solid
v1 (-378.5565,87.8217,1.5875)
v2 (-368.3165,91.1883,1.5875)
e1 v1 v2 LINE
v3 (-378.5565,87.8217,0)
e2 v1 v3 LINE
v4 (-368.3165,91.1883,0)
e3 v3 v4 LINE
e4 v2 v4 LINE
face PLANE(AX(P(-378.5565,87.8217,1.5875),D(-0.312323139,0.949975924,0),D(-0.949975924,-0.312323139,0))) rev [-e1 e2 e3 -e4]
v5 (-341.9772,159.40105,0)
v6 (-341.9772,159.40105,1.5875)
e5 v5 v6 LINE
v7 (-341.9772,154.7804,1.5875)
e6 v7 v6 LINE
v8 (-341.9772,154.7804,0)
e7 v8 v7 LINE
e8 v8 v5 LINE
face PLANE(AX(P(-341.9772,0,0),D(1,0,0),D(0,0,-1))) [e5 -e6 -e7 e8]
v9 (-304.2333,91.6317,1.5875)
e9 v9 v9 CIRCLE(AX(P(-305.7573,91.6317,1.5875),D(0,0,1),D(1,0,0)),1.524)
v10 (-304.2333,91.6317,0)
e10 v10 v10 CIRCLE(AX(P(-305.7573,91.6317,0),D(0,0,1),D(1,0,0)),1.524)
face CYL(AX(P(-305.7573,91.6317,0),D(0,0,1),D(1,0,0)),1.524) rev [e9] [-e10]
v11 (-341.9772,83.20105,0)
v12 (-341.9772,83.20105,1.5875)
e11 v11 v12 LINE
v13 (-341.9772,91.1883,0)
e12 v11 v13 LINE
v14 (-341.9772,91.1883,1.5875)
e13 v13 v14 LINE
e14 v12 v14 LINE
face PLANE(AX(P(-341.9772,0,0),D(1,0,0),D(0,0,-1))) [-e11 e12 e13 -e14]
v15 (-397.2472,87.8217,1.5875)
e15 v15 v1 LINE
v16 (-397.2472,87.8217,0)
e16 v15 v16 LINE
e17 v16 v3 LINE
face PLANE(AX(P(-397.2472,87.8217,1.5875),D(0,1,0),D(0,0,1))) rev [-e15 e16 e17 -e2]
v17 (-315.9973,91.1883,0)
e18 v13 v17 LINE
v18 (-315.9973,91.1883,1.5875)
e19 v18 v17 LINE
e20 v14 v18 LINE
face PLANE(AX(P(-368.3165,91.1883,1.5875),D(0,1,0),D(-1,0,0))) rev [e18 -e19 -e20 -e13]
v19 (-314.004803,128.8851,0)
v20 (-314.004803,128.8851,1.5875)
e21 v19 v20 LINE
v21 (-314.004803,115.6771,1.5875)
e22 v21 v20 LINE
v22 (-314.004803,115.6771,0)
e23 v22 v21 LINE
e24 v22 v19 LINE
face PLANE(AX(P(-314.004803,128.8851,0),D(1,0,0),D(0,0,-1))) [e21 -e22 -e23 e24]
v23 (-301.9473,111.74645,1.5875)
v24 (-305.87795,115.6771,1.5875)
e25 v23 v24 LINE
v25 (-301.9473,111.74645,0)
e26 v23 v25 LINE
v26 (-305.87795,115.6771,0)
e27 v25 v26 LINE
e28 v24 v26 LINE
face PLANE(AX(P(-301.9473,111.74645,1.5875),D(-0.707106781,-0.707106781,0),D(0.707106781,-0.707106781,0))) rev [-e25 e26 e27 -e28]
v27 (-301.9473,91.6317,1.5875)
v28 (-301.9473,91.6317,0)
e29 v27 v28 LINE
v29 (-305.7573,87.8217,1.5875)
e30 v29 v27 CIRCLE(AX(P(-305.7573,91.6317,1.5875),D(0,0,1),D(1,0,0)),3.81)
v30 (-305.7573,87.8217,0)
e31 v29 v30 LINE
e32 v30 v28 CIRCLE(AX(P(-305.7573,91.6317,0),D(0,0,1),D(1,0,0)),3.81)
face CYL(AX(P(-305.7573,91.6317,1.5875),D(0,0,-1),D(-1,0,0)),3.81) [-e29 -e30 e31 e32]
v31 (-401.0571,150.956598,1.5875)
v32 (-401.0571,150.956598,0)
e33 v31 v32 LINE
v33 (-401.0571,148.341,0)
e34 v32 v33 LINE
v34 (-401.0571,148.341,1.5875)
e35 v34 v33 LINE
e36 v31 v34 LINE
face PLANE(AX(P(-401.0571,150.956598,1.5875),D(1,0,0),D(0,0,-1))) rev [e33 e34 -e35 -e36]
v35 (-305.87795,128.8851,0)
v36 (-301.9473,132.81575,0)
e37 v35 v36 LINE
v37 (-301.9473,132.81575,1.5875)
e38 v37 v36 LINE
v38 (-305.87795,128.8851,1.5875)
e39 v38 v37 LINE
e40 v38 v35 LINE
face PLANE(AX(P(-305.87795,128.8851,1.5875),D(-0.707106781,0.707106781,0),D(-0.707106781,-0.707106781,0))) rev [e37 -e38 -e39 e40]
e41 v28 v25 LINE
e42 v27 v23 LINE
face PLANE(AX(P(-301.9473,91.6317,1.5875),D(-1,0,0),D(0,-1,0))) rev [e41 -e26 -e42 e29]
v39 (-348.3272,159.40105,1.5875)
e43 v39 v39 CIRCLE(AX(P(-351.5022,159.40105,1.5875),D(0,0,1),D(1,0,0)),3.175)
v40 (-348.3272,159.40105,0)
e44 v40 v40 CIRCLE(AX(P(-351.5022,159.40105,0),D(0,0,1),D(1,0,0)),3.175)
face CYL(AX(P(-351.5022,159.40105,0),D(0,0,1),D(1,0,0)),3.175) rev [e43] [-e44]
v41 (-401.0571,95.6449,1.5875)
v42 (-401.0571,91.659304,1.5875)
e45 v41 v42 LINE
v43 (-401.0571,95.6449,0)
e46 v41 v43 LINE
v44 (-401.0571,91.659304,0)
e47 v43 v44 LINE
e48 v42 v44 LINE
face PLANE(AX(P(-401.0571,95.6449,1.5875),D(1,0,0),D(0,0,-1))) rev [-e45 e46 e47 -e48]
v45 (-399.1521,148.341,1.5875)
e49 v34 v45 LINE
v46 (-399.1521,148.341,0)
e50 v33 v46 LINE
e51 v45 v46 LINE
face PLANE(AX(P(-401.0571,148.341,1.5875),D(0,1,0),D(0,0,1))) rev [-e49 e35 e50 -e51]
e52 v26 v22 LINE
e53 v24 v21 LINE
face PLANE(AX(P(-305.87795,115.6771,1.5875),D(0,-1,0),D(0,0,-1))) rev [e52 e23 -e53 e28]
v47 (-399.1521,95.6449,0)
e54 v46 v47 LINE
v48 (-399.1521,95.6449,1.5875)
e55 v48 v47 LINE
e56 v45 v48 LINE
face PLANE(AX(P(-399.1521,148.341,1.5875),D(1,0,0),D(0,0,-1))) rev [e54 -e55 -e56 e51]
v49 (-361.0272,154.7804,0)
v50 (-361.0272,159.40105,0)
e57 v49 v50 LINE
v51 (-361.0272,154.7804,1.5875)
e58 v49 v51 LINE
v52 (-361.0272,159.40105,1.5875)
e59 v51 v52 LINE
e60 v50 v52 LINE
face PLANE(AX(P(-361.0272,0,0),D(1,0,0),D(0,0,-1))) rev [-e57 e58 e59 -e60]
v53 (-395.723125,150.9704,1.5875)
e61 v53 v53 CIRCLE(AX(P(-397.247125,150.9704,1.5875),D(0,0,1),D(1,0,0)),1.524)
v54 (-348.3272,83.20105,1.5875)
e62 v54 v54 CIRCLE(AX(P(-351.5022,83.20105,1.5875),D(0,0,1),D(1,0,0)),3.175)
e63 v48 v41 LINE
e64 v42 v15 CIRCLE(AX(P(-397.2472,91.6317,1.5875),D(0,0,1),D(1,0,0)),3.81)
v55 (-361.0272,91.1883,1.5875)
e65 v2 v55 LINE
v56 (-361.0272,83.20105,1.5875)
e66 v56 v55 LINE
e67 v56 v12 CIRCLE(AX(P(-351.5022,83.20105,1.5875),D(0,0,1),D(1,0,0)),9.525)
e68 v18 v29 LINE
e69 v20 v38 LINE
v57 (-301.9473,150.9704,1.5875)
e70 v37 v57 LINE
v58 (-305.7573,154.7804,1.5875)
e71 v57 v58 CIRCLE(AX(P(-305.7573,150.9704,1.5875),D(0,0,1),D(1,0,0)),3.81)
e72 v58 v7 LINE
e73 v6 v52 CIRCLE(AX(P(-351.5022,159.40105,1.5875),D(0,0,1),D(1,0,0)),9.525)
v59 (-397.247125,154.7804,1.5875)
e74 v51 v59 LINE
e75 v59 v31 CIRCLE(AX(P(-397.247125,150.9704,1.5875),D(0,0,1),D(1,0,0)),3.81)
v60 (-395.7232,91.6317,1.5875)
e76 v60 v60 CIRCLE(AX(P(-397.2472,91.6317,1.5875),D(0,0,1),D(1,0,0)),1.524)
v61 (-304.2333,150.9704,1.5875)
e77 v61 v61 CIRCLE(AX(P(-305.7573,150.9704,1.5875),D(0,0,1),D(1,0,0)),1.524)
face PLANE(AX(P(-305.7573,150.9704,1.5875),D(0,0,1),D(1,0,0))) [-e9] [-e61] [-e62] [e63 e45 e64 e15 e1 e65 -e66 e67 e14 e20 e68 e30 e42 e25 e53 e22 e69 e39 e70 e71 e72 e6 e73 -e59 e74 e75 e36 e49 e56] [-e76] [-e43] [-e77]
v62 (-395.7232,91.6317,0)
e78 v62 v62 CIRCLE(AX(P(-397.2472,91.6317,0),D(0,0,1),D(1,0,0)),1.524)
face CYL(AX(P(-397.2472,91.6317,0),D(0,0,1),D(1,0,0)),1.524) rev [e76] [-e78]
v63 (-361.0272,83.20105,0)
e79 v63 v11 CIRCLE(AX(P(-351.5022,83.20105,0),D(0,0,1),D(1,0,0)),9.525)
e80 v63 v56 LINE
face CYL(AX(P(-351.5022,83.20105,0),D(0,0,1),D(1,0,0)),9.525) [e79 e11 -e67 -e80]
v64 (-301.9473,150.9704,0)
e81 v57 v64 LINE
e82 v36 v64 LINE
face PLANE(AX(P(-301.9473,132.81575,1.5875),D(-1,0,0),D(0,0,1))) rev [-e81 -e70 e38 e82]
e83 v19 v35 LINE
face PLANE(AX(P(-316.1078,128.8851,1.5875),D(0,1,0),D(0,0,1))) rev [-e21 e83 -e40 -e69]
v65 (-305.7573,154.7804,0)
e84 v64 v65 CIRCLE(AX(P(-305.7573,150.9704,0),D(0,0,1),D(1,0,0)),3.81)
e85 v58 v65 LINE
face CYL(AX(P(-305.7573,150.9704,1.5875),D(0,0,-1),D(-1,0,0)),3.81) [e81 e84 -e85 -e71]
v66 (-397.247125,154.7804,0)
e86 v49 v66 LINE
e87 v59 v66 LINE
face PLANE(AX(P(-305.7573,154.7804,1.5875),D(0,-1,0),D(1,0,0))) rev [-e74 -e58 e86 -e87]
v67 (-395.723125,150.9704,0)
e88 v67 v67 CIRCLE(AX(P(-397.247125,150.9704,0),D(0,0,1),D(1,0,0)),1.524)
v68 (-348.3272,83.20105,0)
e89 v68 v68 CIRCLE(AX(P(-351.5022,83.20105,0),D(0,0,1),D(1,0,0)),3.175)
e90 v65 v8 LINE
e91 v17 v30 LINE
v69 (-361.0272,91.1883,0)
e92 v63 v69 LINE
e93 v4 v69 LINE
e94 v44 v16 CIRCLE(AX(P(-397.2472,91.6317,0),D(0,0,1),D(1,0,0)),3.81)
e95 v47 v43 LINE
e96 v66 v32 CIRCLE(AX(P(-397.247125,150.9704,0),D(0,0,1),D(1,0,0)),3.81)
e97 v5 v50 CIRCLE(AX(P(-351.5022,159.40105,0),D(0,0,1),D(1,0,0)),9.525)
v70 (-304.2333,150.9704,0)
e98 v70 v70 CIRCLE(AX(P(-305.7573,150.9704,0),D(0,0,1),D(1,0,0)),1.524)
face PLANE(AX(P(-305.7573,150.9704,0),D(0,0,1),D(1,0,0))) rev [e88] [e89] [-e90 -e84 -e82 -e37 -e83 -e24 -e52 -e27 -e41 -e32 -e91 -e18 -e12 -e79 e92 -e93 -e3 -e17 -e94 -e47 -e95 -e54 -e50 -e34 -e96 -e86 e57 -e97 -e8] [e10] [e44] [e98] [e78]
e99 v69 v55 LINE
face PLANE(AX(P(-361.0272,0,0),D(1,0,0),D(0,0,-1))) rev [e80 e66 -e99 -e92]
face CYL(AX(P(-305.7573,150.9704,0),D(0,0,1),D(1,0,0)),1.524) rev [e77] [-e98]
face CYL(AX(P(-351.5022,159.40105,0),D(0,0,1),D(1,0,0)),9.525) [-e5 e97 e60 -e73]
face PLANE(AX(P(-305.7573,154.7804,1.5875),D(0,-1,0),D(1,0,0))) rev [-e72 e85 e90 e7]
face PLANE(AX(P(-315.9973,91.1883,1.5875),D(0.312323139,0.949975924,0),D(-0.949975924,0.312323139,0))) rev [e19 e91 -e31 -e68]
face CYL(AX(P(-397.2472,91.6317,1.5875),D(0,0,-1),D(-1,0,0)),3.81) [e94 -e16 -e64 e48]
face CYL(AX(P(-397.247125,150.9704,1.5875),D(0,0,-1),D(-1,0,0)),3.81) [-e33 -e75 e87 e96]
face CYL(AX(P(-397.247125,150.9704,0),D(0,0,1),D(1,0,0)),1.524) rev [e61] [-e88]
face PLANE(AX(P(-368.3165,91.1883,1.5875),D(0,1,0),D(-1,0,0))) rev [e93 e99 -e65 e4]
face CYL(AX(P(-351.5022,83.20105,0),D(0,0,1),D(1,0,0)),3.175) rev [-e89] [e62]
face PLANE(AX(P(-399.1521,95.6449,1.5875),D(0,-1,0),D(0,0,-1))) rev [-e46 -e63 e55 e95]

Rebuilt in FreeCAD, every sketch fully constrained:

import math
import FreeCAD as App
import Part
import Sketcher

V = App.Vector
Q = App.Units.Quantity


def add_polygon(sketch, points):
    """Adds a closed chain of lines whose ends are joined by coincident constraints."""
    first, n = sketch.GeometryCount, len(points)
    for a, b in zip(points, points[1:] + points[:1]):
        sketch.addGeometry(Part.LineSegment(App.Vector(*a, 0), App.Vector(*b, 0)), False)
    for i in range(n):
        sketch.addConstraint(Sketcher.Constraint("Coincident", first + i, 2, first + (i + 1) % n, 1))

doc = App.newDocument("Part")
body = doc.addObject("PartDesign::Body", "Body")

# Sketch on XY plane
sketch1 = body.newObject("Sketcher::SketchObject", "Sketch")
sketch1.AttachmentSupport = (doc.getObject("XY_Plane"), [""])
sketch1.MapMode = "FlatFace"
sketch1.addGeometry(Part.LineSegment(V(-301.9473, 111.74645, 0), V(-305.87795, 115.6771, 0)), False)
sketch1.addGeometry(Part.LineSegment(V(-305.87795, 115.6771, 0), V(-316.1078, 115.6771, 0)), False)
sketch1.addGeometry(Part.LineSegment(V(-316.1078, 115.6771, 0), V(-316.1078, 128.8851, 0)), False)
sketch1.addGeometry(Part.LineSegment(V(-316.1078, 128.8851, 0), V(-305.87795, 128.8851, 0)), False)
sketch1.addGeometry(Part.LineSegment(V(-305.87795, 128.8851, 0), V(-301.9473, 132.81575, 0)), False)
sketch1.addGeometry(Part.LineSegment(V(-301.9473, 132.81575, 0), V(-301.9473, 150.9704, 0)), False)
sketch1.addGeometry(Part.ArcOfCircle(Part.Circle(V(-305.7573, 150.9704, 0), V(0, 0, 1), 3.81), math.radians(0), math.radians(90)), False)
sketch1.addGeometry(Part.LineSegment(V(-305.7573, 154.7804, 0), V(-397.247125, 154.7804, 0)), False)
sketch1.addGeometry(Part.ArcOfCircle(Part.Circle(V(-397.247125, 150.9704, 0), V(0, 0, 1), 3.81), math.radians(90), math.radians(180.207561)), False)
sketch1.addGeometry(Part.LineSegment(V(-401.0571, 150.956598, 0), V(-401.0571, 148.341, 0)), False)
sketch1.addGeometry(Part.LineSegment(V(-401.0571, 148.341, 0), V(-399.1521, 148.341, 0)), False)
sketch1.addGeometry(Part.LineSegment(V(-399.1521, 148.341, 0), V(-399.1521, 95.6449, 0)), False)
sketch1.addGeometry(Part.LineSegment(V(-399.1521, 95.6449, 0), V(-401.0571, 95.6449, 0)), False)
sketch1.addGeometry(Part.LineSegment(V(-401.0571, 95.6449, 0), V(-401.0571, 91.659304, 0)), False)
sketch1.addGeometry(Part.ArcOfCircle(Part.Circle(V(-397.2472, 91.6317, 0), V(0, 0, 1), 3.81), math.radians(179.584878), math.radians(270)), False)
sketch1.addGeometry(Part.LineSegment(V(-397.2472, 87.8217, 0), V(-378.5565, 87.8217, 0)), False)
sketch1.addGeometry(Part.LineSegment(V(-378.5565, 87.8217, 0), V(-368.3165, 91.1883, 0)), False)
sketch1.addGeometry(Part.LineSegment(V(-368.3165, 91.1883, 0), V(-315.9973, 91.1883, 0)), False)
sketch1.addGeometry(Part.LineSegment(V(-315.9973, 91.1883, 0), V(-305.7573, 87.8217, 0)), False)
sketch1.addGeometry(Part.ArcOfCircle(Part.Circle(V(-305.7573, 91.6317, 0), V(0, 0, 1), 3.81), math.radians(-90), math.radians(0)), False)
sketch1.addGeometry(Part.LineSegment(V(-301.9473, 91.6317, 0), V(-301.9473, 111.74645, 0)), False)
sketch1.addGeometry(Part.Circle(V(-397.2472, 91.6317, 0), V(0, 0, 1), 1.3559), False)
sketch1.addGeometry(Part.Circle(V(-305.7573, 91.6317, 0), V(0, 0, 1), 1.3559), False)
sketch1.addGeometry(Part.Circle(V(-397.247125, 150.9704, 0), V(0, 0, 1), 1.3559), False)
sketch1.addGeometry(Part.Circle(V(-305.7573, 150.9704, 0), V(0, 0, 1), 1.3559), False)
sketch1.addConstraint(Sketcher.Constraint("Coincident", 0, 2, 1, 1))
sketch1.addConstraint(Sketcher.Constraint("Coincident", 1, 2, 2, 1))
sketch1.addConstraint(Sketcher.Constraint("Coincident", 2, 2, 3, 1))
sketch1.addConstraint(Sketcher.Constraint("Coincident", 3, 2, 4, 1))
sketch1.addConstraint(Sketcher.Constraint("Coincident", 4, 2, 5, 1))
sketch1.addConstraint(Sketcher.Constraint("Tangent", 5, 2, 6, 1))
sketch1.addConstraint(Sketcher.Constraint("Tangent", 6, 2, 7, 1))
sketch1.addConstraint(Sketcher.Constraint("Tangent", 7, 2, 8, 1))
sketch1.addConstraint(Sketcher.Constraint("Coincident", 8, 2, 9, 1))
sketch1.addConstraint(Sketcher.Constraint("Coincident", 9, 2, 10, 1))
sketch1.addConstraint(Sketcher.Constraint("Coincident", 10, 2, 11, 1))
sketch1.addConstraint(Sketcher.Constraint("Coincident", 11, 2, 12, 1))
sketch1.addConstraint(Sketcher.Constraint("Coincident", 12, 2, 13, 1))
sketch1.addConstraint(Sketcher.Constraint("Coincident", 13, 2, 14, 1))
sketch1.addConstraint(Sketcher.Constraint("Tangent", 14, 2, 15, 1))
sketch1.addConstraint(Sketcher.Constraint("Coincident", 15, 2, 16, 1))
sketch1.addConstraint(Sketcher.Constraint("Coincident", 16, 2, 17, 1))
sketch1.addConstraint(Sketcher.Constraint("Coincident", 17, 2, 18, 1))
sketch1.addConstraint(Sketcher.Constraint("Coincident", 18, 2, 19, 1))
sketch1.addConstraint(Sketcher.Constraint("Tangent", 19, 2, 20, 1))
sketch1.addConstraint(Sketcher.Constraint("Coincident", 20, 2, 0, 1))
sketch1.addConstraint(Sketcher.Constraint("Horizontal", 1))
sketch1.addConstraint(Sketcher.Constraint("Vertical", 2))
sketch1.addConstraint(Sketcher.Constraint("Horizontal", 3))
sketch1.addConstraint(Sketcher.Constraint("Vertical", 5))
sketch1.addConstraint(Sketcher.Constraint("Horizontal", 7))
sketch1.addConstraint(Sketcher.Constraint("Vertical", 9))
sketch1.addConstraint(Sketcher.Constraint("Horizontal", 10))
sketch1.addConstraint(Sketcher.Constraint("Vertical", 11))
sketch1.addConstraint(Sketcher.Constraint("Horizontal", 12))
sketch1.addConstraint(Sketcher.Constraint("Vertical", 13))
sketch1.addConstraint(Sketcher.Constraint("Horizontal", 15))
sketch1.addConstraint(Sketcher.Constraint("Horizontal", 17))
sketch1.addConstraint(Sketcher.Constraint("Vertical", 20))
sketch1.addConstraint(Sketcher.Constraint("Coincident", 21, 3, 14, 3))
sketch1.addConstraint(Sketcher.Constraint("Coincident", 22, 3, 19, 3))
sketch1.addConstraint(Sketcher.Constraint("Coincident", 23, 3, 8, 3))
sketch1.addConstraint(Sketcher.Constraint("Coincident", 24, 3, 6, 3))
sketch1.addConstraint(Sketcher.Constraint("Equal", 6, 8))
sketch1.addConstraint(Sketcher.Constraint("Equal", 8, 14))
sketch1.addConstraint(Sketcher.Constraint("Equal", 14, 19))
sketch1.addConstraint(Sketcher.Constraint("Equal", 21, 22))
sketch1.addConstraint(Sketcher.Constraint("Equal", 22, 23))
sketch1.addConstraint(Sketcher.Constraint("Equal", 23, 24))
sketch1.addConstraint(Sketcher.Constraint("Perpendicular", 0, 4))
sketch1.addConstraint(Sketcher.Constraint("Horizontal", 14, 3, 19, 3))
sketch1.addConstraint(Sketcher.Constraint("Vertical", 6, 3, 19, 3))
sketch1.addConstraint(Sketcher.Constraint("Vertical", 0, 2, 3, 2))
sketch1.addConstraint(Sketcher.Constraint("Vertical", 9, 2, 12, 2))
sketch1.addConstraint(Sketcher.Constraint("Vertical", 6, 2, 18, 2))
sketch1.addConstraint(Sketcher.Constraint("Equal", 0, 4))
sketch1.addConstraint(Sketcher.Constraint("Equal", 16, 18))
sketch1.addConstraint(Sketcher.Constraint("Radius", 6, Q("0.15 in")))
sketch1.addConstraint(Sketcher.Constraint("DistanceY", 2, 1, 2, 2, Q("0.52 in")))
sketch1.addConstraint(Sketcher.Constraint("Diameter", 21, 2.711801))
sketch1.addConstraint(Sketcher.Constraint("DistanceX", 10, 1, 10, 2, Q("0.075 in")))
sketch1.addConstraint(Sketcher.Constraint("DistanceY", 14, 3, 11, 2, Q("0.158 in")))
sketch1.addConstraint(Sketcher.Constraint("DistanceX", 11, 2, 16, 2, Q("1.214 in")))
sketch1.addConstraint(Sketcher.Constraint("DistanceX", 15, 1, 15, 2, 18.6907))
sketch1.addConstraint(Sketcher.Constraint("DistanceX", 17, 1, 17, 2, 52.3192))
sketch1.addConstraint(Sketcher.Constraint("DistanceY", 11, 2, 11, 1, 52.6961))
sketch1.addConstraint(Sketcher.Constraint("DistanceY", 0, 2, 6, 3, Q("1.3895 in")))
sketch1.addConstraint(Sketcher.Constraint("DistanceX", 1, 2, 19, 3, Q("0.4075 in")))
sketch1.addConstraint(Sketcher.Constraint("DistanceX", 1, 2, 1, 1, 10.22985))
sketch1.addConstraint(Sketcher.Constraint("DistanceY", 20, 1, 20, 2, 20.11475))
sketch1.addConstraint(Sketcher.Constraint("DistanceX", 6, 3, -1, 1, 305.7573))
sketch1.addConstraint(Sketcher.Constraint("DistanceY", -1, 1, 6, 3, 150.9704))
sketch1.addConstraint(Sketcher.Constraint("DistanceX", 14, 3, -1, 1, 397.2472))
sketch1.addConstraint(Sketcher.Constraint("DistanceY", -1, 1, 16, 2, 91.1883))
sketch1.addConstraint(Sketcher.Constraint("DistanceX", 7, 2, 7, 1, 91.489825))
pad1 = body.newObject("PartDesign::Pad", "Pad")
pad1.Profile = sketch1
pad1.Length = Q("0.0625 in")

# Sketch on XY plane
sketch2 = body.newObject("Sketcher::SketchObject", "Sketch001")
sketch2.AttachmentSupport = (doc.getObject("XY_Plane"), [""])
sketch2.MapMode = "FlatFace"
sketch2.AttachmentOffset = App.Placement(V(0, 0, 0.0625 * 25.4), App.Rotation())
sketch2.addGeometry(Part.LineSegment(V(-361, 159.4, 0), V(-361, 154.8, 0)), False)
sketch2.addGeometry(Part.LineSegment(V(-361, 154.8, 0), V(-342, 154.8, 0)), False)
sketch2.addGeometry(Part.LineSegment(V(-342, 154.8, 0), V(-342, 159.4, 0)), False)
sketch2.addGeometry(Part.ArcOfCircle(Part.Circle(V(-351.5, 159.4, 0), V(0, 0, 1), 9.5), math.radians(0), math.radians(180)), False)
sketch2.addGeometry(Part.Circle(V(-351.5, 159.4, 0), V(0, 0, 1), 3.2), False)
sketch2.addGeometry(Part.LineSegment(V(-342, 91.2, 0), V(-361, 91.2, 0)), False)
sketch2.addGeometry(Part.LineSegment(V(-361, 91.2, 0), V(-361, 83.2, 0)), False)
sketch2.addGeometry(Part.ArcOfCircle(Part.Circle(V(-351.5, 83.2, 0), V(0, 0, 1), 9.5), math.radians(180), math.radians(360)), False)
sketch2.addGeometry(Part.LineSegment(V(-342, 83.2, 0), V(-342, 91.2, 0)), False)
sketch2.addGeometry(Part.Circle(V(-351.5, 83.2, 0), V(0, 0, 1), 3.2), False)
sketch2.addConstraint(Sketcher.Constraint("Coincident", 0, 2, 1, 1))
sketch2.addConstraint(Sketcher.Constraint("Coincident", 1, 2, 2, 1))
sketch2.addConstraint(Sketcher.Constraint("Tangent", 2, 2, 3, 1))
sketch2.addConstraint(Sketcher.Constraint("Tangent", 3, 2, 0, 1))
sketch2.addConstraint(Sketcher.Constraint("Coincident", 5, 2, 6, 1))
sketch2.addConstraint(Sketcher.Constraint("Tangent", 6, 2, 7, 1))
sketch2.addConstraint(Sketcher.Constraint("Tangent", 7, 2, 8, 1))
sketch2.addConstraint(Sketcher.Constraint("Coincident", 8, 2, 5, 1))
sketch2.addConstraint(Sketcher.Constraint("Vertical", 0))
sketch2.addConstraint(Sketcher.Constraint("Horizontal", 1))
sketch2.addConstraint(Sketcher.Constraint("Vertical", 2))
sketch2.addConstraint(Sketcher.Constraint("Horizontal", 5))
sketch2.addConstraint(Sketcher.Constraint("Vertical", 6))
sketch2.addConstraint(Sketcher.Constraint("Vertical", 8))
sketch2.addConstraint(Sketcher.Constraint("Coincident", 4, 3, 3, 3))
sketch2.addConstraint(Sketcher.Constraint("Coincident", 9, 3, 7, 3))
sketch2.addConstraint(Sketcher.Constraint("Equal", 3, 7))
sketch2.addConstraint(Sketcher.Constraint("Equal", 4, 9))
sketch2.addConstraint(Sketcher.Constraint("Vertical", 4, 3, 7, 3))
sketch2.addConstraint(Sketcher.Constraint("Diameter", 4, Q("0.25 in")))
sketch2.addConstraint(Sketcher.Constraint("Radius", 3, Q("0.375 in")))
sketch2.addConstraint(Sketcher.Constraint("DistanceY", 7, 3, 3, 3, Q("3 in")))
sketch2.addConstraint(Sketcher.Constraint("DistanceY", 0, 2, 0, 1, 4.62065))
sketch2.addConstraint(Sketcher.Constraint("DistanceY", 6, 2, 6, 1, 7.98725))
sketch2.addConstraint(Sketcher.Constraint("DistanceX", 3, 3, -1, 1, 351.5022))
sketch2.addConstraint(Sketcher.Constraint("DistanceY", -1, 1, 0, 2, 154.7804))
pad2 = body.newObject("PartDesign::Pad", "Pad001")
pad2.Profile = sketch2
pad2.Length = Q("0.0625 in")
pad2.Reversed = True

# Sketch on XY plane
sketch3 = body.newObject("Sketcher::SketchObject", "Sketch002")
sketch3.AttachmentSupport = (doc.getObject("XY_Plane"), [""])
sketch3.MapMode = "FlatFace"
sketch3.AttachmentOffset = App.Placement(V(0, 0, 0.0625 * 25.4), App.Rotation())
sketch3.addGeometry(Part.Circle(V(-397.2, 151, 0), V(0, 0, 1), 1.5), False)
sketch3.addGeometry(Part.Circle(V(-305.8, 151, 0), V(0, 0, 1), 1.5), False)
sketch3.addGeometry(Part.Circle(V(-305.8, 91.6, 0), V(0, 0, 1), 1.5), False)
sketch3.addGeometry(Part.Circle(V(-397.2, 91.6, 0), V(0, 0, 1), 1.5), False)
sketch3.addConstraint(Sketcher.Constraint("Equal", 0, 1))
sketch3.addConstraint(Sketcher.Constraint("Equal", 1, 2))
sketch3.addConstraint(Sketcher.Constraint("Equal", 2, 3))
sketch3.addConstraint(Sketcher.Constraint("Horizontal", 0, 3, 1, 3))
sketch3.addConstraint(Sketcher.Constraint("Horizontal", 2, 3, 3, 3))
sketch3.addConstraint(Sketcher.Constraint("Vertical", 1, 3, 2, 3))
sketch3.addConstraint(Sketcher.Constraint("Diameter", 0, Q("0.12 in")))
sketch3.addConstraint(Sketcher.Constraint("DistanceY", -1, 1, 0, 3, 150.9704))
sketch3.addConstraint(Sketcher.Constraint("DistanceX", 1, 3, -1, 1, 305.7573))
sketch3.addConstraint(Sketcher.Constraint("DistanceY", -1, 1, 2, 3, 91.6317))
sketch3.addConstraint(Sketcher.Constraint("DistanceX", 3, 3, -1, 1, 397.2472))
sketch3.addConstraint(Sketcher.Constraint("DistanceX", 0, 3, -1, 1, 397.247125))
pocket1 = body.newObject("PartDesign::Pocket", "Pocket")
pocket1.Profile = sketch3
pocket1.Type = "ThroughAll"

# Sketch on XY plane
sketch4 = body.newObject("Sketcher::SketchObject", "Sketch003")
sketch4.AttachmentSupport = (doc.getObject("XY_Plane"), [""])
sketch4.MapMode = "FlatFace"
sketch4.AttachmentOffset = App.Placement(V(0, 0, 0.0625 * 25.4), App.Rotation())
add_polygon(sketch4, [(-316.1, 128.9), (-316.1, 115.7), (-314, 115.7), (-314, 128.9)])  # lines 0-3
sketch4.addConstraint(Sketcher.Constraint("Vertical", 0))
sketch4.addConstraint(Sketcher.Constraint("Horizontal", 1))
sketch4.addConstraint(Sketcher.Constraint("Vertical", 2))
sketch4.addConstraint(Sketcher.Constraint("Horizontal", 3))
sketch4.addConstraint(Sketcher.Constraint("DistanceY", 0, 2, 0, 1, Q("0.52 in")))
sketch4.addConstraint(Sketcher.Constraint("DistanceX", 0, 2, -1, 1, 316.1078))
sketch4.addConstraint(Sketcher.Constraint("DistanceY", -1, 1, 0, 2, 115.6771))
sketch4.addConstraint(Sketcher.Constraint("DistanceX", 1, 1, 1, 2, 2.102997))
pad3 = body.newObject("PartDesign::Pad", "Pad002")
pad3.Profile = sketch4
pad3.Length = Q("0.0625 in")
pad3.Reversed = True

doc.recompute()
